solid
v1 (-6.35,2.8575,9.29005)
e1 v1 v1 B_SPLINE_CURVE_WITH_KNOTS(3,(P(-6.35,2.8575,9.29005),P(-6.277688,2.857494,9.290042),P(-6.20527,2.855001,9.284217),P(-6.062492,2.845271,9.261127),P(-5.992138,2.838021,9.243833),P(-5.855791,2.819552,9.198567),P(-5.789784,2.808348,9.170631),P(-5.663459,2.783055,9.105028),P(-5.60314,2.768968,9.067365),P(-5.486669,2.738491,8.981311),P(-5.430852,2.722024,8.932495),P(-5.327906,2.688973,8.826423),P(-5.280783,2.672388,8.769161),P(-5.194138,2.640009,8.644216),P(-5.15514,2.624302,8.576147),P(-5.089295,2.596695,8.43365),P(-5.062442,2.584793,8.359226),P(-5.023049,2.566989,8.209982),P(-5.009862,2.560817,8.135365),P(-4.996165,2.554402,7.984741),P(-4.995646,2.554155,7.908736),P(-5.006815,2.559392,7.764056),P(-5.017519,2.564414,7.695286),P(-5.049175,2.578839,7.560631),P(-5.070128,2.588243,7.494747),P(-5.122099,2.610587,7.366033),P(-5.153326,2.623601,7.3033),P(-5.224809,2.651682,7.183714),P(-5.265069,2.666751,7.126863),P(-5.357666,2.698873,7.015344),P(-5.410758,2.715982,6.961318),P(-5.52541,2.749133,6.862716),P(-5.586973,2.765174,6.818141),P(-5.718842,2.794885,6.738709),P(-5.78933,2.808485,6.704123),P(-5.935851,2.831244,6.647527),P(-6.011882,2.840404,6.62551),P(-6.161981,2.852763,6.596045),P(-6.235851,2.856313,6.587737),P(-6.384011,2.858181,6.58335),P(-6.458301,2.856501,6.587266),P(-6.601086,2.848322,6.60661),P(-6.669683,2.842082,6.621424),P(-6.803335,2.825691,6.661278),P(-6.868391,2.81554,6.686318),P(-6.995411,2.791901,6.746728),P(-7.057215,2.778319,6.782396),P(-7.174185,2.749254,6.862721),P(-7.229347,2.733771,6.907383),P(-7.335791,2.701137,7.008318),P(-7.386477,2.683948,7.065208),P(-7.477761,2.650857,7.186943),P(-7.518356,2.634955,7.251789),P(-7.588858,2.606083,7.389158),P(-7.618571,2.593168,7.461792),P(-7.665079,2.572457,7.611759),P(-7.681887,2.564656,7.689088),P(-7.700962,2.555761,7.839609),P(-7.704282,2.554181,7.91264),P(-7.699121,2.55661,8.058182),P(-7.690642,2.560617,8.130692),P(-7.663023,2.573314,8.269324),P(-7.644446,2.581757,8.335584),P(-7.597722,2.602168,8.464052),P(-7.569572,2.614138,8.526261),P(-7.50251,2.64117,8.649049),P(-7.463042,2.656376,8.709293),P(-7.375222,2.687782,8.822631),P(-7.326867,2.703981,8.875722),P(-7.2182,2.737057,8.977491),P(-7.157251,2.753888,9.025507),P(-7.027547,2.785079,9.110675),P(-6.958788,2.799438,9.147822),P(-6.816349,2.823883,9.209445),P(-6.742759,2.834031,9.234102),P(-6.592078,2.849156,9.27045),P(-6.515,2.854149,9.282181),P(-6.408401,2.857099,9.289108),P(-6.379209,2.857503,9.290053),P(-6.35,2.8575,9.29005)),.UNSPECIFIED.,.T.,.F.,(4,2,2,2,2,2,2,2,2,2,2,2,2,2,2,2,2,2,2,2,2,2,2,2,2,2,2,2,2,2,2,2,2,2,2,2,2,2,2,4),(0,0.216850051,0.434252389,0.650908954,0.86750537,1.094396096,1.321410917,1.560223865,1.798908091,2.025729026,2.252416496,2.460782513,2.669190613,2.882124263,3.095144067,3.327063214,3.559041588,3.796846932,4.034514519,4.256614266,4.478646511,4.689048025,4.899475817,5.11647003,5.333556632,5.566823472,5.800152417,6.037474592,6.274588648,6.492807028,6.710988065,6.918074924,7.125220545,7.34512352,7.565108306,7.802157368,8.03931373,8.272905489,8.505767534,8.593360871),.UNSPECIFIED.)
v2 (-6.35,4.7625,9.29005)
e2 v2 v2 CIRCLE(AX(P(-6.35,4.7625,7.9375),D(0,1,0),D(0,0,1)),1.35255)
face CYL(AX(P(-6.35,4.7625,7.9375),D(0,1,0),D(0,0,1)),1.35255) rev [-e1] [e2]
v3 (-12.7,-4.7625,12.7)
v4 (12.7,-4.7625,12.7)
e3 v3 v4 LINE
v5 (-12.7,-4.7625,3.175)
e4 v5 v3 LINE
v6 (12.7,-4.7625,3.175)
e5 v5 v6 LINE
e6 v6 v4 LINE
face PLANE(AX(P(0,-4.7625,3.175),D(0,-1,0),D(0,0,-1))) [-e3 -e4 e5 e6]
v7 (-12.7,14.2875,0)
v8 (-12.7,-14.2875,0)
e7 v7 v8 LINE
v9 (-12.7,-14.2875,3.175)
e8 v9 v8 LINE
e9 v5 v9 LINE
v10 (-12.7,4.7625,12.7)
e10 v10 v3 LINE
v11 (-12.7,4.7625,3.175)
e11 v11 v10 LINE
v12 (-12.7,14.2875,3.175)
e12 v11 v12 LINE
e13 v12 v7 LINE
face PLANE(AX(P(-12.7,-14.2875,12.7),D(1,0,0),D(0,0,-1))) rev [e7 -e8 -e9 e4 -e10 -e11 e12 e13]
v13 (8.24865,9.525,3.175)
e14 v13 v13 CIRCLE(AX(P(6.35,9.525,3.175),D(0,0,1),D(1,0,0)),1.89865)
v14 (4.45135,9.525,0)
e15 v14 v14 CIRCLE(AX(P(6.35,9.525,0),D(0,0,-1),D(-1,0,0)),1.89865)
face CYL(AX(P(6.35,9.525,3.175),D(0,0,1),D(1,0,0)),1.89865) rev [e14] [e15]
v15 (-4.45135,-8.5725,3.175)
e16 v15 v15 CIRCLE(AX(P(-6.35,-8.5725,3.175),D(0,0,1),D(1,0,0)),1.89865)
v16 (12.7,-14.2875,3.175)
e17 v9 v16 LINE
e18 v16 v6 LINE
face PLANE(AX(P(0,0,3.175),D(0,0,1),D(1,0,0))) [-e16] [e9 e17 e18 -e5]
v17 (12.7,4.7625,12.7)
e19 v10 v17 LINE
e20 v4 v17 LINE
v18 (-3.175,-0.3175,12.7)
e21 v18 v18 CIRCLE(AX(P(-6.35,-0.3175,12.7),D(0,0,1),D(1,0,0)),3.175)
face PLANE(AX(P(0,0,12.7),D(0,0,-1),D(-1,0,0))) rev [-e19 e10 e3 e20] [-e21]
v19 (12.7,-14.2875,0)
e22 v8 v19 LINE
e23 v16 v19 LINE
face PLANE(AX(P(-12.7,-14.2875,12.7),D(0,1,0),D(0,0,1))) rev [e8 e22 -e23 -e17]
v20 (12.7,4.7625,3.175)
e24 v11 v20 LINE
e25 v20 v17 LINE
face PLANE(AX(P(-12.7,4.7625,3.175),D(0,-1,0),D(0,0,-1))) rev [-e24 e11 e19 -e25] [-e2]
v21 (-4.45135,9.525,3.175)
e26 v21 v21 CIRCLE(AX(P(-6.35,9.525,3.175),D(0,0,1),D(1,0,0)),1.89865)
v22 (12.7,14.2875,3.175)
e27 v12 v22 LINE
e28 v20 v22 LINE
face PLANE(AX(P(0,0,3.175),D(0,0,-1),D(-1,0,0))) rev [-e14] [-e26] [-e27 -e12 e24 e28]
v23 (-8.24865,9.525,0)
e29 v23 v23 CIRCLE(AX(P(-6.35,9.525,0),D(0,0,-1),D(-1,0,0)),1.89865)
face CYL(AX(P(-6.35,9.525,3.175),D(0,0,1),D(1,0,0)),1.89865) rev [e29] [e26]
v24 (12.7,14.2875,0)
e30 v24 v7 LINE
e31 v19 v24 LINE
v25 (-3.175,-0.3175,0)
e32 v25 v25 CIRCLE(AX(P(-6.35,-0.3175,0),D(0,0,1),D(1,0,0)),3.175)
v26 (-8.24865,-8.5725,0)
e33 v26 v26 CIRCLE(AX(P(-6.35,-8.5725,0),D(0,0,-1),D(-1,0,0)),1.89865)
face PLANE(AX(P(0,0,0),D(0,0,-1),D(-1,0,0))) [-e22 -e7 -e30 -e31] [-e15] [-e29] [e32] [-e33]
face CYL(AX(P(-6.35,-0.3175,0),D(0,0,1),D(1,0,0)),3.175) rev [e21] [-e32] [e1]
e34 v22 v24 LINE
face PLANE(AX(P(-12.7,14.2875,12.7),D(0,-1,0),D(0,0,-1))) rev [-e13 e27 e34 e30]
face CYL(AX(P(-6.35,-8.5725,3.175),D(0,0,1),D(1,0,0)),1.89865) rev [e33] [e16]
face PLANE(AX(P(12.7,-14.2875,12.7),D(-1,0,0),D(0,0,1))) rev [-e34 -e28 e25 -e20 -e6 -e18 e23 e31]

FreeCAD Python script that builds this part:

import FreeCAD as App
import Part
import Sketcher
Q = App.Units.Quantity

doc = App.newDocument("Part")
body = doc.addObject("PartDesign::Body", "Body")

sketch1 = doc.addObject("Sketcher::SketchObject", "Sketch")
body.addObject(sketch1)
sketch1.AttachmentSupport = (doc.XY_Plane, [""])
sketch1.MapMode = "FlatFace"
sketch1.addGeometry(Part.LineSegment(App.Vector(-13, 14, 0), App.Vector(-13, -14, 0)), False)
sketch1.addGeometry(Part.LineSegment(App.Vector(-13, -14, 0), App.Vector(13, -14, 0)), False)
sketch1.addGeometry(Part.LineSegment(App.Vector(13, -14, 0), App.Vector(13, 14, 0)), False)
sketch1.addGeometry(Part.LineSegment(App.Vector(13, 14, 0), App.Vector(-13, 14, 0)), False)
sketch1.addConstraint(Sketcher.Constraint("Coincident", 0, 2, 1, 1))
sketch1.addConstraint(Sketcher.Constraint("Coincident", 1, 2, 2, 1))
sketch1.addConstraint(Sketcher.Constraint("Coincident", 2, 2, 3, 1))
sketch1.addConstraint(Sketcher.Constraint("Coincident", 3, 2, 0, 1))
sketch1.addConstraint(Sketcher.Constraint("Vertical", 0))
sketch1.addConstraint(Sketcher.Constraint("Horizontal", 1))
sketch1.addConstraint(Sketcher.Constraint("Vertical", 2))
sketch1.addConstraint(Sketcher.Constraint("Horizontal", 3))
sketch1.addConstraint(Sketcher.Constraint("Symmetric", 0, 2, 2, 2, -1, 1))
sketch1.addConstraint(Sketcher.Constraint("DistanceX", 1, 1, 1, 2, Q("1 in")))
sketch1.addConstraint(Sketcher.Constraint("DistanceY", 0, 2, 0, 1, Q("1.125 in")))
pad1 = doc.addObject("PartDesign::Pad", "Pad")
body.addObject(pad1)
pad1.Profile = sketch1
pad1.Length = Q("0.5 in")

sketch2 = doc.addObject("Sketcher::SketchObject", "Sketch001")
body.addObject(sketch2)
sketch2.AttachmentSupport = (doc.XY_Plane, [""])
sketch2.MapMode = "FlatFace"
sketch2.AttachmentOffset = App.Placement(App.Vector(0, 0, 0.5 * 25.4), App.Rotation())
sketch2.addGeometry(Part.LineSegment(App.Vector(-13, -5, 0), App.Vector(-13, -14, 0)), False)
sketch2.addGeometry(Part.LineSegment(App.Vector(-13, -14, 0), App.Vector(13, -14, 0)), False)
sketch2.addGeometry(Part.LineSegment(App.Vector(13, -14, 0), App.Vector(13, -5, 0)), False)
sketch2.addGeometry(Part.LineSegment(App.Vector(13, -5, 0), App.Vector(-13, -5, 0)), False)
sketch2.addGeometry(Part.LineSegment(App.Vector(-13, 14, 0), App.Vector(-13, 5, 0)), False)
sketch2.addGeometry(Part.LineSegment(App.Vector(-13, 5, 0), App.Vector(13, 5, 0)), False)
sketch2.addGeometry(Part.LineSegment(App.Vector(13, 5, 0), App.Vector(13, 14, 0)), False)
sketch2.addGeometry(Part.LineSegment(App.Vector(13, 14, 0), App.Vector(-13, 14, 0)), False)
sketch2.addConstraint(Sketcher.Constraint("Coincident", 0, 2, 1, 1))
sketch2.addConstraint(Sketcher.Constraint("Coincident", 1, 2, 2, 1))
sketch2.addConstraint(Sketcher.Constraint("Coincident", 2, 2, 3, 1))
sketch2.addConstraint(Sketcher.Constraint("Coincident", 3, 2, 0, 1))
sketch2.addConstraint(Sketcher.Constraint("Coincident", 4, 2, 5, 1))
sketch2.addConstraint(Sketcher.Constraint("Coincident", 5, 2, 6, 1))
sketch2.addConstraint(Sketcher.Constraint("Coincident", 6, 2, 7, 1))
sketch2.addConstraint(Sketcher.Constraint("Coincident", 7, 2, 4, 1))
sketch2.addConstraint(Sketcher.Constraint("Vertical", 0))
sketch2.addConstraint(Sketcher.Constraint("Horizontal", 1))
sketch2.addConstraint(Sketcher.Constraint("Vertical", 2))
sketch2.addConstraint(Sketcher.Constraint("Horizontal", 3))
sketch2.addConstraint(Sketcher.Constraint("Vertical", 4))
sketch2.addConstraint(Sketcher.Constraint("Horizontal", 5))
sketch2.addConstraint(Sketcher.Constraint("Vertical", 6))
sketch2.addConstraint(Sketcher.Constraint("Horizontal", 7))
sketch2.addConstraint(Sketcher.Constraint("Symmetric", 2, 2, 4, 2, -1, 1))
sketch2.addConstraint(Sketcher.Constraint("Symmetric", 0, 2, 6, 2, -1, 1))
sketch2.addConstraint(Sketcher.Constraint("Vertical", 3, 2, 4, 2))
sketch2.addConstraint(Sketcher.Constraint("DistanceX", 1, 1, 1, 2, Q("1 in")))
sketch2.addConstraint(Sketcher.Constraint("DistanceY", 0, 2, 0, 1, Q("0.375 in")))
sketch2.addConstraint(Sketcher.Constraint("DistanceY", 0, 2, 4, 2, Q("0.75 in")))
pocket1 = doc.addObject("PartDesign::Pocket", "Pocket")
body.addObject(pocket1)
pocket1.Profile = sketch2
pocket1.Length = Q("0.375 in")

sketch3 = doc.addObject("Sketcher::SketchObject", "Sketch002")
body.addObject(sketch3)
sketch3.AttachmentSupport = (doc.XY_Plane, [""])
sketch3.MapMode = "FlatFace"
sketch3.AttachmentOffset = App.Placement(App.Vector(0, 0, 0.5 * 25.4), App.Rotation())
sketch3.addGeometry(Part.Circle(App.Vector(-6.3, -0.3, 0), App.Vector(0, 0, 1), 3.2), False)
sketch3.addConstraint(Sketcher.Constraint("Diameter", 0, Q("0.25 in")))
sketch3.addConstraint(Sketcher.Constraint("DistanceX", 0, 3, -1, 1, Q("0.25 in")))
sketch3.addConstraint(Sketcher.Constraint("DistanceY", 0, 3, -1, 1, Q("0.0125 in")))
pocket2 = doc.addObject("PartDesign::Pocket", "Pocket001")
body.addObject(pocket2)
pocket2.Profile = sketch3
pocket2.Type = "ThroughAll"

sketch4 = doc.addObject("Sketcher::SketchObject", "Sketch003")
body.addObject(sketch4)
sketch4.AttachmentSupport = (doc.XZ_Plane, [""])
sketch4.MapMode = "FlatFace"
sketch4.AttachmentOffset = App.Placement(App.Vector(0, 0, -0.1875 * 25.4), App.Rotation())
sketch4.addGeometry(Part.Circle(App.Vector(-6.3, 7.9, 0), App.Vector(0, 0, 1), 1.4), False)
sketch4.addConstraint(Sketcher.Constraint("Diameter", 0, Q("0.1065 in")))
sketch4.addConstraint(Sketcher.Constraint("DistanceX", 0, 3, -1, 1, Q("0.25 in")))
sketch4.addConstraint(Sketcher.Constraint("DistanceY", -1, 1, 0, 3, Q("0.3125 in")))
pocket3 = doc.addObject("PartDesign::Pocket", "Pocket002")
body.addObject(pocket3)
pocket3.Profile = sketch4
pocket3.Type = "UpToFirst"
pocket3.Reversed = True

sketch5 = doc.addObject("Sketcher::SketchObject", "Sketch004")
body.addObject(sketch5)
sketch5.AttachmentSupport = (doc.XY_Plane, [""])
sketch5.MapMode = "FlatFace"
sketch5.AttachmentOffset = App.Placement(App.Vector(0, 0, 0.125 * 25.4), App.Rotation())
sketch5.addGeometry(Part.Circle(App.Vector(-6.3, 9.5, 0), App.Vector(0, 0, 1), 1.9), False)
sketch5.addGeometry(Part.Circle(App.Vector(6.3, 9.5, 0), App.Vector(0, 0, 1), 1.9), False)
sketch5.addGeometry(Part.Circle(App.Vector(-6.3, -8.6, 0), App.Vector(0, 0, 1), 1.9), False)
sketch5.addConstraint(Sketcher.Constraint("Equal", 0, 1))
sketch5.addConstraint(Sketcher.Constraint("Equal", 1, 2))
sketch5.addConstraint(Sketcher.Constraint("Symmetric", 0, 3, 1, 3, -2))
sketch5.addConstraint(Sketcher.Constraint("Vertical", 0, 3, 2, 3))
sketch5.addConstraint(Sketcher.Constraint("Diameter", 0, Q("0.1495 in")))
sketch5.addConstraint(Sketcher.Constraint("DistanceX", 0, 3, 1, 3, Q("0.5 in")))
sketch5.addConstraint(Sketcher.Constraint("DistanceY", -1, 1, 0, 3, Q("0.375 in")))
sketch5.addConstraint(Sketcher.Constraint("DistanceY", 2, 3, -1, 1, Q("0.3375 in")))
doc.recompute()
hole = doc.addObject("PartDesign::Hole", "Hole")
body.addObject(hole)
hole.Profile = sketch5
hole.ThreadType = "None"
hole.Diameter = Q("0.1495 in")
hole.DepthType = "ThroughAll"

doc.recompute()
